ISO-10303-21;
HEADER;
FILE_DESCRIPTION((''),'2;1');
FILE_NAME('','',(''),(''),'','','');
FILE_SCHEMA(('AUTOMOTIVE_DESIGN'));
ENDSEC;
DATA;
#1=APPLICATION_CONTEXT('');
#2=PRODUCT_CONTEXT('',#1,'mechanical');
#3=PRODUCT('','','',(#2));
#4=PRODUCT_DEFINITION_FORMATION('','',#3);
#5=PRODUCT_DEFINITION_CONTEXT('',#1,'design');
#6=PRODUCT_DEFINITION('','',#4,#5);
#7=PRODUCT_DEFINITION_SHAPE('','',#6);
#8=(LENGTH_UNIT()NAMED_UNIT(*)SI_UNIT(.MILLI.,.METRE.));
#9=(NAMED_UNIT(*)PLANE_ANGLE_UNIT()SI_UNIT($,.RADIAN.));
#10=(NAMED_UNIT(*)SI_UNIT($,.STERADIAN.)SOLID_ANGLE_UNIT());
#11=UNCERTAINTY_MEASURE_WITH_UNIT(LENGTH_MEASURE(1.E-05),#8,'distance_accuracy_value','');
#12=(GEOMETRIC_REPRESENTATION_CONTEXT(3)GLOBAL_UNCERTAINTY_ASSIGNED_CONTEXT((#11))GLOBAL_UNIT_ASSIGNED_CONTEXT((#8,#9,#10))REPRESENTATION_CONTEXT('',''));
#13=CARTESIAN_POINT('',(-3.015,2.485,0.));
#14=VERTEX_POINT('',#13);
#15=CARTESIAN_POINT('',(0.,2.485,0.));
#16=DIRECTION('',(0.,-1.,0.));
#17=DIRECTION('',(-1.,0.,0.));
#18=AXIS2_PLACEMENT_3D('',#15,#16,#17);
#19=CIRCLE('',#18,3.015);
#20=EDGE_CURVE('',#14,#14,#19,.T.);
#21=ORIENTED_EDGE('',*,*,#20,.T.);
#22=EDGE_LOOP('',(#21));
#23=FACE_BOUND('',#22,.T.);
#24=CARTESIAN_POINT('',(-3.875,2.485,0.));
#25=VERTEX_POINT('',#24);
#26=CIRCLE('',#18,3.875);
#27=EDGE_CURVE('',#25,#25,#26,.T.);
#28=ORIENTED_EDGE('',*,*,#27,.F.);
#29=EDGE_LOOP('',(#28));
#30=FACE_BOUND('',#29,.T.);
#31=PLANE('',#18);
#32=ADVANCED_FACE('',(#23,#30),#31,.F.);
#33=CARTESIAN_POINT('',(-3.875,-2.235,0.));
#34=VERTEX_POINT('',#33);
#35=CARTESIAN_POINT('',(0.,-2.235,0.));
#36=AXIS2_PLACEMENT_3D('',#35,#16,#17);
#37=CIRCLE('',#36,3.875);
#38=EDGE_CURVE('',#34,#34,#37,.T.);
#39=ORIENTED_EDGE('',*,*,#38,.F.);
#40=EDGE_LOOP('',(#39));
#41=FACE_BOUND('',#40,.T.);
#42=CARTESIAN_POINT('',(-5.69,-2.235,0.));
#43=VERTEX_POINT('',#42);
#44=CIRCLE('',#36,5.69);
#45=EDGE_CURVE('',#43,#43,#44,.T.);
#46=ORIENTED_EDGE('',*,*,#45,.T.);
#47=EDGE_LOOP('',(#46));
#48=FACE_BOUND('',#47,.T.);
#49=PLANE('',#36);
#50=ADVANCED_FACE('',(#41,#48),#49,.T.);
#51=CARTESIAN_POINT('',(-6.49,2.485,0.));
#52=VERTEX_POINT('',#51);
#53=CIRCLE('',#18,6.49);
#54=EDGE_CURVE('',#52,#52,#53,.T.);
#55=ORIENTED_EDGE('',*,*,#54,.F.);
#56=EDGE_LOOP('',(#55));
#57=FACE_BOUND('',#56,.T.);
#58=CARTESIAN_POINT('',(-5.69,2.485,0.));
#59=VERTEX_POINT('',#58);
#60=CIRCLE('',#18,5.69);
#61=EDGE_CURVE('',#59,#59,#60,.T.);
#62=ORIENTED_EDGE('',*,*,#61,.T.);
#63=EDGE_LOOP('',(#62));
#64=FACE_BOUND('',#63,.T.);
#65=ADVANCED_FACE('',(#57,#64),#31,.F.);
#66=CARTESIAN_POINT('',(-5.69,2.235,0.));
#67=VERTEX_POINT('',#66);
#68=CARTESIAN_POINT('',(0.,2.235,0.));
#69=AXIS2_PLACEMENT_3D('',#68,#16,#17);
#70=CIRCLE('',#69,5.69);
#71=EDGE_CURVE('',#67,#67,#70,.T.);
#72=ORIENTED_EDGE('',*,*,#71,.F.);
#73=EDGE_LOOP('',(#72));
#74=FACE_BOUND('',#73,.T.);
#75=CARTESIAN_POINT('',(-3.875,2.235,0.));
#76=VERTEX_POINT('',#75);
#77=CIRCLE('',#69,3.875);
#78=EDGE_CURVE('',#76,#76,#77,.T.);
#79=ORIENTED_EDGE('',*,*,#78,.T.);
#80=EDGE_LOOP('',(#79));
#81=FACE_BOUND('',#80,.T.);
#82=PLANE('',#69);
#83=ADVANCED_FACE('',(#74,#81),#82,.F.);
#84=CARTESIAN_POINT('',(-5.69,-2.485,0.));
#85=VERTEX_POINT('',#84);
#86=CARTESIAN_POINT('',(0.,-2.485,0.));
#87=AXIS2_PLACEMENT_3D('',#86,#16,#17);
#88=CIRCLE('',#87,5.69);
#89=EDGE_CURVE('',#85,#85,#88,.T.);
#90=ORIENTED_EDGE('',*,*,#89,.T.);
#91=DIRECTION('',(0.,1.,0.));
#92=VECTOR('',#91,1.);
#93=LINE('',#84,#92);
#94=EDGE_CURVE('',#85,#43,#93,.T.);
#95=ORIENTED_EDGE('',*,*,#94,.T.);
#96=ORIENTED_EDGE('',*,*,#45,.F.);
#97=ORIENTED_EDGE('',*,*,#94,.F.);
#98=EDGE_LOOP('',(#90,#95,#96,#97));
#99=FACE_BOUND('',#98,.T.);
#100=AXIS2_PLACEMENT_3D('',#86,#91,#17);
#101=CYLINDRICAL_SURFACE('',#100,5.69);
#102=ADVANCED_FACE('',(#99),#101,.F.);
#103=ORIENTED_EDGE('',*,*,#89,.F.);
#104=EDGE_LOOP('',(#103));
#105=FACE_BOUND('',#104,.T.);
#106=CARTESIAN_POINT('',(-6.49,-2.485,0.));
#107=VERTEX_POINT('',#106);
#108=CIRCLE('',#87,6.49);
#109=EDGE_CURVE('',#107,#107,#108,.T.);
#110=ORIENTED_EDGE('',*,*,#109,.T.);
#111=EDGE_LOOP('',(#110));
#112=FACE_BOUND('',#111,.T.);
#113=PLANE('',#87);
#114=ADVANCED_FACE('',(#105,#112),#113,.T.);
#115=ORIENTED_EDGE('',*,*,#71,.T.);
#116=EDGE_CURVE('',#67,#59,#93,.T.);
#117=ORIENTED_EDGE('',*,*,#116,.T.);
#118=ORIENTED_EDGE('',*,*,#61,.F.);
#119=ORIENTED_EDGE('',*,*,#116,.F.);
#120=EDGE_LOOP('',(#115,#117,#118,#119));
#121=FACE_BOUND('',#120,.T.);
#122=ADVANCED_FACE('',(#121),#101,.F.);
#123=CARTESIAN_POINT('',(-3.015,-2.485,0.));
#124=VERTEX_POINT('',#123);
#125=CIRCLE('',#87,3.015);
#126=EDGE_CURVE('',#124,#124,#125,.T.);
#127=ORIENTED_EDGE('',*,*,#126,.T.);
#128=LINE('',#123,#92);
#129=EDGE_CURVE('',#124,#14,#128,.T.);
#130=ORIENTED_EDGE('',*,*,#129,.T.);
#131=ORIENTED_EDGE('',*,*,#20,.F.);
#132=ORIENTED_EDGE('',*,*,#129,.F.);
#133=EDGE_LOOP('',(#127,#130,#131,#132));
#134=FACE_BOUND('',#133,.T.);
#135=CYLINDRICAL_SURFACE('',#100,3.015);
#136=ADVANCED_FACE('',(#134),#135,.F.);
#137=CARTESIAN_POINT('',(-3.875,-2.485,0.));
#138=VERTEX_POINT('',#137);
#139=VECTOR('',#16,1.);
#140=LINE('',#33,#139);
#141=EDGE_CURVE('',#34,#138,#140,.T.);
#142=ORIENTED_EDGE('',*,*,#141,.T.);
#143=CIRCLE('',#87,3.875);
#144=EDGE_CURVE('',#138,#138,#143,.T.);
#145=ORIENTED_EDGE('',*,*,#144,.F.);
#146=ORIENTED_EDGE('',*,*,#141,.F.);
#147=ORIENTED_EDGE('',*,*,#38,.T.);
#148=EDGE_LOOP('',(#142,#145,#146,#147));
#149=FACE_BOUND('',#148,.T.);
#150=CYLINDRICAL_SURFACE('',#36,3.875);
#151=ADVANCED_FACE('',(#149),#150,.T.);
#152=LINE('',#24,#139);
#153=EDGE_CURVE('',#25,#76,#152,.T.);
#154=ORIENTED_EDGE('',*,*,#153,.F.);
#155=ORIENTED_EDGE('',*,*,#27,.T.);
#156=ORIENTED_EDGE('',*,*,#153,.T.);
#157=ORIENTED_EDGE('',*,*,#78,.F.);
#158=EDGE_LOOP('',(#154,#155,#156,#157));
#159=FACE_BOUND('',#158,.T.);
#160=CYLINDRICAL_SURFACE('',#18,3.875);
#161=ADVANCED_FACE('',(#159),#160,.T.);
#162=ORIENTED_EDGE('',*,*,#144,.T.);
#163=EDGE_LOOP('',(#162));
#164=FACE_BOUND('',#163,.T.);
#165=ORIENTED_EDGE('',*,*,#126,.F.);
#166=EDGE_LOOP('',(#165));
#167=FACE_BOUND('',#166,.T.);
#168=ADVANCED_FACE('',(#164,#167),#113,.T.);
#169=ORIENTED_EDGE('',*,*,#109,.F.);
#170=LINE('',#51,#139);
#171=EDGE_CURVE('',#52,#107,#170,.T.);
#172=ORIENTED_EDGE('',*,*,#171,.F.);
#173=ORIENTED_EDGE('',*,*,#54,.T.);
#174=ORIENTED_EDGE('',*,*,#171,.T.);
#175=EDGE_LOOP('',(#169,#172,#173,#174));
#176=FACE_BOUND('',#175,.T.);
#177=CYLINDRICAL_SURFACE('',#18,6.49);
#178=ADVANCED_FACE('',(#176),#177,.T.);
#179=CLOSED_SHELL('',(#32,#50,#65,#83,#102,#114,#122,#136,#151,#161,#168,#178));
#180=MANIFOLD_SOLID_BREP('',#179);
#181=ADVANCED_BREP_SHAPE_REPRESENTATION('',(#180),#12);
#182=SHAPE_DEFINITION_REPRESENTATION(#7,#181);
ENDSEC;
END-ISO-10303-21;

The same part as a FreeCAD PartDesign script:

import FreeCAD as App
import Part
import Sketcher
from FreeCAD import Vector


def add_polygon(sketch, points):
    """Adds a closed chain of lines whose ends are joined by coincident constraints."""
    first, n = sketch.GeometryCount, len(points)
    for a, b in zip(points, points[1:] + points[:1]):
        sketch.addGeometry(Part.LineSegment(App.Vector(*a, 0), App.Vector(*b, 0)), False)
    for i in range(n):
        sketch.addConstraint(Sketcher.Constraint("Coincident", first + i, 2, first + (i + 1) % n, 1))

doc = App.newDocument("Part")
params = doc.addObject("Spreadsheet::Sheet", "Params")
for row, (alias, value) in enumerate([
    ("sketch1_width", "0.8 mm"),
    ("sketch1_width2", "0.86 mm"),
    ("sketch1_height", "4.97 mm"),
    ("sketch1_height2", "0.25 mm"),
    ("revolution_angle", "360 deg"),
], start=1):
    params.set(f"A{row}", alias)
    params.set(f"B{row}", "=" + value)
    params.setAlias(f"B{row}", alias)

body = doc.addObject("PartDesign::Body", "Body")

# Sketch on XY plane
sketch1 = doc.addObject("Sketcher::SketchObject", "Sketch")
body.addObject(sketch1)
sketch1.AttachmentSupport = (doc.XY_Plane, [""])
sketch1.MapMode = "FlatFace"
add_polygon(sketch1, [(-6.49, 2.48), (-6.49, -2.48), (-5.69, -2.48), (-5.69, -2.23), (-3.88, -2.23), (-3.88, -2.48), (-3.02, -2.48), (-3.02, 2.48), (-3.88, 2.48), (-3.88, 2.23), (-5.69, 2.23), (-5.69, 2.48)])  # lines 0-11
sketch1.addConstraint([
    Sketcher.Constraint("Vertical", 0),
    Sketcher.Constraint("Horizontal", 1),
    Sketcher.Constraint("Vertical", 2),
    Sketcher.Constraint("Horizontal", 3),
    Sketcher.Constraint("Vertical", 4),
    Sketcher.Constraint("Horizontal", 5),
    Sketcher.Constraint("Vertical", 6),
    Sketcher.Constraint("Horizontal", 7),
    Sketcher.Constraint("Vertical", 8),
    Sketcher.Constraint("Horizontal", 9),
    Sketcher.Constraint("Vertical", 10),
    Sketcher.Constraint("Horizontal", 11),
    Sketcher.Constraint("Symmetric", 4, 2, 7, 2, -1),
    Sketcher.Constraint("Symmetric", 2, 2, 9, 2, -1),
    Sketcher.Constraint("Horizontal", 1, 2, 4, 2),
    Sketcher.Constraint("Horizontal", 7, 2, 10, 2),
    Sketcher.Constraint("DistanceX", 1, 1, 1, 2, 0.8),
    Sketcher.Constraint("DistanceX", 5, 1, 5, 2, 0.86),
    Sketcher.Constraint("DistanceY", 0, 2, 0, 1, 4.97),
    Sketcher.Constraint("DistanceY", 2, 1, 2, 2, 0.25),
    Sketcher.Constraint("DistanceX", 3, 1, 3, 2, 1.815),
    Sketcher.Constraint("DistanceX", 0, 2, -1, 1, 6.49),
])
sketch1.setExpression("Constraints[28]", "Params.sketch1_width")
sketch1.setExpression("Constraints[29]", "Params.sketch1_width2")
sketch1.setExpression("Constraints[30]", "Params.sketch1_height")
sketch1.setExpression("Constraints[31]", "Params.sketch1_height2")
revolution = doc.addObject("PartDesign::Revolution", "Revolution")
body.addObject(revolution)
revolution.Profile = sketch1
revolution.ReferenceAxis = (sketch1, ["V_Axis"])
revolution.setExpression("Angle", "Params.revolution_angle")

doc.recompute()
